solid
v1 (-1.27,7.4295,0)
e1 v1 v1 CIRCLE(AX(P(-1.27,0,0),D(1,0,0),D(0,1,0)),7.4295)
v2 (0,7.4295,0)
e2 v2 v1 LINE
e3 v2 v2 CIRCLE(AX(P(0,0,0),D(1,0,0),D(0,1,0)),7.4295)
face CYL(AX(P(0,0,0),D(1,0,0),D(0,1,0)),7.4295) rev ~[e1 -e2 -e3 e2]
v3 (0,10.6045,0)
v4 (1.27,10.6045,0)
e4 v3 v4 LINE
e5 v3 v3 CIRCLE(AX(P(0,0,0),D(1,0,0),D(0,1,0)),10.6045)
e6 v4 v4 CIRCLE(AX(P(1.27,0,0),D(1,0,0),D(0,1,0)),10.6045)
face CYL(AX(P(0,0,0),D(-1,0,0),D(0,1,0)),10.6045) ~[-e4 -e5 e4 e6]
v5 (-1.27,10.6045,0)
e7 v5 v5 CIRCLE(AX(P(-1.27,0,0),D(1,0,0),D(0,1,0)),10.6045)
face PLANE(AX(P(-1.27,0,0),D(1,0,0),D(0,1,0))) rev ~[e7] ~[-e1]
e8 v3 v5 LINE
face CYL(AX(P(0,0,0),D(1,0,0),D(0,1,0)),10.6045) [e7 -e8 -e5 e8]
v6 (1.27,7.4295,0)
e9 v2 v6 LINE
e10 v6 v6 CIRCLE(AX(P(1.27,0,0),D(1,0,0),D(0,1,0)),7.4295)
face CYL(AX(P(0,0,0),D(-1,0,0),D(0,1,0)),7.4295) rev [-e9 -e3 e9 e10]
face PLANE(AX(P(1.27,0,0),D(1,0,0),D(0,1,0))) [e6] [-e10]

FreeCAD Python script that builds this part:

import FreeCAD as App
import Part
import Sketcher

V = App.Vector
Q = App.Units.Quantity

doc = App.newDocument("Part")
body = doc.addObject("PartDesign::Body", "Body")

# Sketch on YZ plane
sketch1 = body.newObject("Sketcher::SketchObject", "Sketch")
sketch1.AttachmentSupport = (doc.getObject("YZ_Plane"), [""])
sketch1.MapMode = "FlatFace"
sketch1.addGeometry([
    Part.Circle(V(0, 0, 0), V(0, 0, 1), 11),
    Part.Circle(V(0, 0, 0), V(0, 0, 1), 7),
], False)
sketch1.addConstraint([
    Sketcher.Constraint("Coincident", 0, 3, -1, 1),
    Sketcher.Constraint("Coincident", 1, 3, -1, 1),
    Sketcher.Constraint("Diameter", 1, Q("0.585 in")),
    Sketcher.Constraint("Diameter", 0, Q("0.835 in")),
])
pad1 = body.newObject("PartDesign::Pad", "Pad")
pad1.Profile = sketch1
pad1.Length = Q("0.1 in")
pad1.Midplane = True

doc.recompute()
